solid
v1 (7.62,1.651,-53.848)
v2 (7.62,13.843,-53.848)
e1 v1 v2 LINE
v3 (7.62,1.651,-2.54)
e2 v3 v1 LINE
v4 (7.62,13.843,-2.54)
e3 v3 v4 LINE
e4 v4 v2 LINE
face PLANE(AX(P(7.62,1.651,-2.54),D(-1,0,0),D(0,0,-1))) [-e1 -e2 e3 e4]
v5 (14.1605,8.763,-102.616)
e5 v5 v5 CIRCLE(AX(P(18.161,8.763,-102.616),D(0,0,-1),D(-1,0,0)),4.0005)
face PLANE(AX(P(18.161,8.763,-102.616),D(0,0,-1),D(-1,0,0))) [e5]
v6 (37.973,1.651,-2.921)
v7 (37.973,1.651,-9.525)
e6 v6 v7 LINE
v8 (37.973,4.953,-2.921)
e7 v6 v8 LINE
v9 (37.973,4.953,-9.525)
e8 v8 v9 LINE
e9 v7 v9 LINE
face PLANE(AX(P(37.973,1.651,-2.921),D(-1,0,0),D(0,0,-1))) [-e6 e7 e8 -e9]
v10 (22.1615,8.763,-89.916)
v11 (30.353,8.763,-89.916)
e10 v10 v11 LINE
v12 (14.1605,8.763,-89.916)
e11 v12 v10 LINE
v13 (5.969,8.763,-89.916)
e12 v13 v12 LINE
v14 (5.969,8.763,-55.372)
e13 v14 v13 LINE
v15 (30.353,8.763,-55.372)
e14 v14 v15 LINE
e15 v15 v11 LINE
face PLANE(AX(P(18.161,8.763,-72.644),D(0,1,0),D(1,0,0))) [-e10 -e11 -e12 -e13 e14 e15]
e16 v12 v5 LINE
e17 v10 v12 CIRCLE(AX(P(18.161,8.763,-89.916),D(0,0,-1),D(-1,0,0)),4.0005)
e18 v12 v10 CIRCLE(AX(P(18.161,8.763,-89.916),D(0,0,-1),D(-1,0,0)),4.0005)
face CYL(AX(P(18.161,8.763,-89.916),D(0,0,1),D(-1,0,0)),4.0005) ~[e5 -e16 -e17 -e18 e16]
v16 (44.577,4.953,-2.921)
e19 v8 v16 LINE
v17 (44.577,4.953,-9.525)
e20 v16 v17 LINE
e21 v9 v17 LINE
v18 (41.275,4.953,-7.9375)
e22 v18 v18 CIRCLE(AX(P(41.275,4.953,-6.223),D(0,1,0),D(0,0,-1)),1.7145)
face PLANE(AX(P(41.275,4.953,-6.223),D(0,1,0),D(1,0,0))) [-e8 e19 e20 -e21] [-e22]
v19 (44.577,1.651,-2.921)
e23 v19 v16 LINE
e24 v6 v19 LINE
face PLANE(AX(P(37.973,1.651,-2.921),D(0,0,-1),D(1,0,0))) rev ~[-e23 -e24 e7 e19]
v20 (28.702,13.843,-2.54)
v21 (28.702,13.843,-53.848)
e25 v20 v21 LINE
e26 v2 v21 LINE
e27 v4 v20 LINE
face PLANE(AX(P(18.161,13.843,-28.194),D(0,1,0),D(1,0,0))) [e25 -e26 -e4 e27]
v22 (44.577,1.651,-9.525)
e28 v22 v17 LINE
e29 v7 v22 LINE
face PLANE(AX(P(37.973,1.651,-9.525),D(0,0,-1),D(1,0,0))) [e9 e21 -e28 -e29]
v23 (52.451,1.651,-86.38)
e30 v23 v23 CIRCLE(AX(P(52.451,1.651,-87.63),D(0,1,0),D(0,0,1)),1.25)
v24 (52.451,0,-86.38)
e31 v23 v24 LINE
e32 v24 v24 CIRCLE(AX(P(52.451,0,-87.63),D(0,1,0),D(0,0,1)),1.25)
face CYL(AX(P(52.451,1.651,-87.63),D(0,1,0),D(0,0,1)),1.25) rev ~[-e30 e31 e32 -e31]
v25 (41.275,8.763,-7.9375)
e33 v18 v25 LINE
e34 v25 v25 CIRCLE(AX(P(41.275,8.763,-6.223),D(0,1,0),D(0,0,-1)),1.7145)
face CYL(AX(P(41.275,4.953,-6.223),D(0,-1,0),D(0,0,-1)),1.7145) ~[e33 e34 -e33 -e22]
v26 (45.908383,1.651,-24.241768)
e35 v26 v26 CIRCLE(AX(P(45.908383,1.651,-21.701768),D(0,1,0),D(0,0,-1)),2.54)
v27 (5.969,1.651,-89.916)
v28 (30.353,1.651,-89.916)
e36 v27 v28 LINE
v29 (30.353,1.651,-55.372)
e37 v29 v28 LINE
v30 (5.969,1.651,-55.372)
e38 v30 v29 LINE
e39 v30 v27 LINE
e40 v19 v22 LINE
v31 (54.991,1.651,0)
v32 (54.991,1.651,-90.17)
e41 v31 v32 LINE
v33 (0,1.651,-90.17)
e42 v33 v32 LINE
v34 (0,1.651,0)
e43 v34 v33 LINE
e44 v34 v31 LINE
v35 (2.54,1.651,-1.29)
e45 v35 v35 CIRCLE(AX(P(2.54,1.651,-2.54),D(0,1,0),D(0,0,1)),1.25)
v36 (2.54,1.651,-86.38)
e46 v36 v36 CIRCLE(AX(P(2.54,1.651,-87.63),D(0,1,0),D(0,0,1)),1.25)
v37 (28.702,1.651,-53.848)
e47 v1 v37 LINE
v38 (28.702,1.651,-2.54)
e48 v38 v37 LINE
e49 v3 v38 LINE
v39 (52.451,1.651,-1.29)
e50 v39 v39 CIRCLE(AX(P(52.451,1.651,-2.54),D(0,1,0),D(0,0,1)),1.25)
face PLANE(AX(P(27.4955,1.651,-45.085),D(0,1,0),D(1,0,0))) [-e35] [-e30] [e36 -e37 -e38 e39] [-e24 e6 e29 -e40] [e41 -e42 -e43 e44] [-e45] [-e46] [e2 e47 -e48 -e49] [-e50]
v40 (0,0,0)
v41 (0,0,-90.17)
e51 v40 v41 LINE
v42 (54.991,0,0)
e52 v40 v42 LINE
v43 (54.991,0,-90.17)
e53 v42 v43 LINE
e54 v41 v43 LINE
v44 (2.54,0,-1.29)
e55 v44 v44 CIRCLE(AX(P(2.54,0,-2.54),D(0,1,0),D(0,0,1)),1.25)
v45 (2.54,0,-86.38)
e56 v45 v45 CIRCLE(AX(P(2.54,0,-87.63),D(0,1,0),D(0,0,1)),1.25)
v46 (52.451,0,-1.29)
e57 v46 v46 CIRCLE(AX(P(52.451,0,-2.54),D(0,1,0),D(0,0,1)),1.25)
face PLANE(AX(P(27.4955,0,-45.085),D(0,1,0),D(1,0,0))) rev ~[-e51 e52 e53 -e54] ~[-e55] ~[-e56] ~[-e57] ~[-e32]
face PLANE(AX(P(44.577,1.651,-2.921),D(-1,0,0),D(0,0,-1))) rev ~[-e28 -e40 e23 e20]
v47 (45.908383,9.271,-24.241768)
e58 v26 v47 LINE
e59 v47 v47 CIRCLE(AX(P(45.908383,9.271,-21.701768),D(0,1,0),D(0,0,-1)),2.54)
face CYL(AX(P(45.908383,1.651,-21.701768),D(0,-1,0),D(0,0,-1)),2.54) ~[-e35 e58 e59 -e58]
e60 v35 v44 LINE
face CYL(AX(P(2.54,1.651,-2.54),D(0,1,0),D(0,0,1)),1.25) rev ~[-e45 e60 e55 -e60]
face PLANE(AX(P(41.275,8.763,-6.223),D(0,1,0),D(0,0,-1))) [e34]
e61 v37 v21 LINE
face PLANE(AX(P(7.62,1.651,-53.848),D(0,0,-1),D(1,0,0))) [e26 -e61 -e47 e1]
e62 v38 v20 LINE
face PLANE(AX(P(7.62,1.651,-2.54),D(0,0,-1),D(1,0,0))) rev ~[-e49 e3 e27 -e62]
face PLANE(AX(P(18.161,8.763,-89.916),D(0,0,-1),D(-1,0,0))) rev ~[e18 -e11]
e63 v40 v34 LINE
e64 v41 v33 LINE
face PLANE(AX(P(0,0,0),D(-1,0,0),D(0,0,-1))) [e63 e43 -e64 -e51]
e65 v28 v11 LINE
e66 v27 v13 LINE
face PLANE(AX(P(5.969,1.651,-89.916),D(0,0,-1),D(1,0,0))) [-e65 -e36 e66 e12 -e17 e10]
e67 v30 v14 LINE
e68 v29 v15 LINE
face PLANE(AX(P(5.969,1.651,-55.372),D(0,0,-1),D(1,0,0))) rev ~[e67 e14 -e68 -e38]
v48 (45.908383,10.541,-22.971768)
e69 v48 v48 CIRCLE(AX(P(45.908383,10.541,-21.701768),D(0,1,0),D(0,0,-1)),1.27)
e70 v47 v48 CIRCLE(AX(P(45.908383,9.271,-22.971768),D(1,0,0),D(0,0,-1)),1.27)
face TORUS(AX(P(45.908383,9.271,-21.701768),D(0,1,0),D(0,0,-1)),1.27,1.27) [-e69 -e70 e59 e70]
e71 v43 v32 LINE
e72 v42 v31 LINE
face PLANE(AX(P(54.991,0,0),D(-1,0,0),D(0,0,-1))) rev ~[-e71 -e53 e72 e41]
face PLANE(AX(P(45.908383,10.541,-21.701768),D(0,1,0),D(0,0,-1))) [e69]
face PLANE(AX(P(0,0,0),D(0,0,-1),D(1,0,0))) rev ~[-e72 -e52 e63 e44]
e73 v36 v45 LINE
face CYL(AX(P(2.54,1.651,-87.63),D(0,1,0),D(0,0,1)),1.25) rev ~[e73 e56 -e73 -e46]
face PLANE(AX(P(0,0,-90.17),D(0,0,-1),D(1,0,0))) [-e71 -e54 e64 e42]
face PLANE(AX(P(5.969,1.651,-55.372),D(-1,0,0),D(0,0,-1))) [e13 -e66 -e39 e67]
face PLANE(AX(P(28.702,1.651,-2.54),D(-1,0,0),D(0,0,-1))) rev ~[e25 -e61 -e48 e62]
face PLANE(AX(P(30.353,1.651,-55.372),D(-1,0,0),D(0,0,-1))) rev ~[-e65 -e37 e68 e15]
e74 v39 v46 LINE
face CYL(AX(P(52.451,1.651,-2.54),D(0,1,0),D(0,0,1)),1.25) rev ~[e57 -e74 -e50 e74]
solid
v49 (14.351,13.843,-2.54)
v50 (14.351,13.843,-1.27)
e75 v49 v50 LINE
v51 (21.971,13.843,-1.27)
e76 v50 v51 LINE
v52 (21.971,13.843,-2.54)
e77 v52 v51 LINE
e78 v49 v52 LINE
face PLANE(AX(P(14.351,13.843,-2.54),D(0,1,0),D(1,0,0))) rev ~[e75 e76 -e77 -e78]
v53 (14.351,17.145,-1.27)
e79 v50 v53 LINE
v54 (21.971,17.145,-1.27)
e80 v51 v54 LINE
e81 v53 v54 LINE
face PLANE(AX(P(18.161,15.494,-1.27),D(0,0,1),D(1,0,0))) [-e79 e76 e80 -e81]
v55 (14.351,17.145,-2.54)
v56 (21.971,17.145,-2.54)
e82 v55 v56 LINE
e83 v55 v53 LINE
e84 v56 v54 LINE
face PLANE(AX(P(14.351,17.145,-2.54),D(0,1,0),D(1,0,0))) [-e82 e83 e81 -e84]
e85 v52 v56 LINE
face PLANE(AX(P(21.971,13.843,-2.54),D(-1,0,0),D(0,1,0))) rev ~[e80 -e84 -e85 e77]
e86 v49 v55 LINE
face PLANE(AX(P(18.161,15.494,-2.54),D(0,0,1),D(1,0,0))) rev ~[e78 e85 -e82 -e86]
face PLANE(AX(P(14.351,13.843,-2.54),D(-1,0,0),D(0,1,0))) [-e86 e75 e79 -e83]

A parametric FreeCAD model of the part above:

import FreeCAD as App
import Part
import Sketcher
Q = App.Units.Quantity


def edges_at(feature, points):
    """Names of the edges that pass closest to the given points."""
    edges = feature.Shape.Edges
    near = lambda p: min(range(len(edges)), key=lambda i: edges[i].distToShape(Part.Vertex(*p))[0])
    return sorted({f"Edge{near(p) + 1}" for p in points})


def add_polygon(sketch, points):
    """Adds a closed chain of lines whose ends are joined by coincident constraints."""
    first, n = sketch.GeometryCount, len(points)
    for a, b in zip(points, points[1:] + points[:1]):
        sketch.addGeometry(Part.LineSegment(App.Vector(*a, 0), App.Vector(*b, 0)), False)
    for i in range(n):
        sketch.addConstraint(Sketcher.Constraint("Coincident", first + i, 2, first + (i + 1) % n, 1))

doc = App.newDocument("Part")
body = doc.addObject("PartDesign::Body", "Body")

# Sketch on XZ plane
sketch1 = doc.addObject("Sketcher::SketchObject", "Sketch")
body.addObject(sketch1)
sketch1.AttachmentSupport = (doc.XZ_Plane, [""])
sketch1.MapMode = "FlatFace"
add_polygon(sketch1, [(0, -90), (0, 0), (55, 0), (55, -90)])  # lines 0-3
sketch1.addConstraint(Sketcher.Constraint("Vertical", 0))
sketch1.addConstraint(Sketcher.Constraint("Horizontal", 1))
sketch1.addConstraint(Sketcher.Constraint("Vertical", 2))
sketch1.addConstraint(Sketcher.Constraint("Horizontal", 3))
sketch1.addConstraint(Sketcher.Constraint("Coincident", 0, 2, -1, 1))
sketch1.addConstraint(Sketcher.Constraint("DistanceY", 0, 1, 0, 2, Q("3.55 in")))
sketch1.addConstraint(Sketcher.Constraint("DistanceX", 1, 1, 1, 2, Q("2.165 in")))
pad1 = doc.addObject("PartDesign::Pad", "Pad")
body.addObject(pad1)
pad1.Profile = sketch1
pad1.Length = Q("0.065 in")
pad1.Reversed = True

# Sketch on XZ plane
sketch2 = doc.addObject("Sketcher::SketchObject", "Sketch001")
body.addObject(sketch2)
sketch2.AttachmentSupport = (doc.XZ_Plane, [""])
sketch2.MapMode = "FlatFace"
sketch2.AttachmentOffset = App.Placement(App.Vector(0, 0, -0.065 * 25.4), App.Rotation())
add_polygon(sketch2, [(8, -54), (8, -3), (29, -3), (29, -54)])  # lines 0-3
sketch2.addConstraint(Sketcher.Constraint("Vertical", 0))
sketch2.addConstraint(Sketcher.Constraint("Horizontal", 1))
sketch2.addConstraint(Sketcher.Constraint("Vertical", 2))
sketch2.addConstraint(Sketcher.Constraint("Horizontal", 3))
sketch2.addConstraint(Sketcher.Constraint("DistanceX", 1, 1, 1, 2, Q("0.83 in")))
sketch2.addConstraint(Sketcher.Constraint("DistanceY", 0, 1, 0, 2, Q("2.02 in")))
sketch2.addConstraint(Sketcher.Constraint("DistanceX", -1, 1, 0, 2, Q("0.3 in")))
sketch2.addConstraint(Sketcher.Constraint("DistanceY", 0, 2, -1, 1, Q("0.1 in")))
pad2 = doc.addObject("PartDesign::Pad", "Pad001")
body.addObject(pad2)
pad2.Profile = sketch2
pad2.Length = Q("0.48 in")
pad2.Reversed = True

# Sketch on XZ plane
sketch3 = doc.addObject("Sketcher::SketchObject", "Sketch002")
body.addObject(sketch3)
sketch3.AttachmentSupport = (doc.XZ_Plane, [""])
sketch3.MapMode = "FlatFace"
sketch3.AttachmentOffset = App.Placement(App.Vector(0, 0, -0.065 * 25.4), App.Rotation())
add_polygon(sketch3, [(38, -10), (38, -3), (45, -3), (45, -10)])  # lines 0-3
sketch3.addConstraint(Sketcher.Constraint("Vertical", 0))
sketch3.addConstraint(Sketcher.Constraint("Horizontal", 1))
sketch3.addConstraint(Sketcher.Constraint("Vertical", 2))
sketch3.addConstraint(Sketcher.Constraint("Horizontal", 3))
sketch3.addConstraint(Sketcher.Constraint("Equal", 3, 0))
sketch3.addConstraint(Sketcher.Constraint("DistanceX", 1, 1, 1, 2, Q("0.26 in")))
sketch3.addConstraint(Sketcher.Constraint("DistanceX", -1, 1, 0, 2, Q("1.495 in")))
sketch3.addConstraint(Sketcher.Constraint("DistanceY", 0, 2, -1, 1, Q("0.115 in")))
pad3 = doc.addObject("PartDesign::Pad", "Pad002")
body.addObject(pad3)
pad3.Profile = sketch3
pad3.Length = Q("0.13 in")
pad3.Reversed = True

# Sketch on XZ plane
sketch4 = doc.addObject("Sketcher::SketchObject", "Sketch003")
body.addObject(sketch4)
sketch4.AttachmentSupport = (doc.XZ_Plane, [""])
sketch4.MapMode = "FlatFace"
sketch4.AttachmentOffset = App.Placement(App.Vector(0, 0, -0.065 * 25.4), App.Rotation())
add_polygon(sketch4, [(6, -90), (6, -55), (30, -55), (30, -90)])  # lines 0-3
sketch4.addConstraint(Sketcher.Constraint("Vertical", 0))
sketch4.addConstraint(Sketcher.Constraint("Horizontal", 1))
sketch4.addConstraint(Sketcher.Constraint("Vertical", 2))
sketch4.addConstraint(Sketcher.Constraint("Horizontal", 3))
sketch4.addConstraint(Sketcher.Constraint("DistanceX", 1, 1, 1, 2, Q("0.96 in")))
sketch4.addConstraint(Sketcher.Constraint("DistanceY", 0, 1, 0, 2, Q("1.36 in")))
sketch4.addConstraint(Sketcher.Constraint("DistanceY", 0, 2, -1, 1, Q("2.18 in")))
sketch4.addConstraint(Sketcher.Constraint("DistanceX", -1, 1, 0, 2, Q("0.235 in")))
pad4 = doc.addObject("PartDesign::Pad", "Pad003")
body.addObject(pad4)
pad4.Profile = sketch4
pad4.Length = Q("0.28 in")
pad4.Reversed = True

# Sketch on XZ plane
sketch5 = doc.addObject("Sketcher::SketchObject", "Sketch004")
body.addObject(sketch5)
sketch5.AttachmentSupport = (doc.XZ_Plane, [""])
sketch5.MapMode = "FlatFace"
sketch5.AttachmentOffset = App.Placement(App.Vector(0, 0, -0.195 * 25.4), App.Rotation())
sketch5.addGeometry(Part.Circle(App.Vector(41.3, -6.2, 0), App.Vector(0, 0, 1), 1.7), False)
sketch5.addConstraint(Sketcher.Constraint("Diameter", 0, Q("0.135 in")))
sketch5.addConstraint(Sketcher.Constraint("DistanceX", -1, 1, 0, 3, Q("1.625 in")))
sketch5.addConstraint(Sketcher.Constraint("DistanceY", 0, 3, -1, 1, Q("0.245 in")))
pad5 = doc.addObject("PartDesign::Pad", "Pad004")
body.addObject(pad5)
pad5.Profile = sketch5
pad5.Length = Q("0.15 in")
pad5.Reversed = True

# Sketch on XZ plane
sketch6 = doc.addObject("Sketcher::SketchObject", "Sketch005")
body.addObject(sketch6)
sketch6.AttachmentSupport = (doc.XZ_Plane, [""])
sketch6.MapMode = "FlatFace"
sketch6.AttachmentOffset = App.Placement(App.Vector(0, 0, -0.065 * 25.4), App.Rotation())
sketch6.addGeometry(Part.Circle(App.Vector(45.9, -21.7, 0), App.Vector(0, 0, 1), 2.5), False)
sketch6.addConstraint(Sketcher.Constraint("Diameter", 0, Q("0.2 in")))
sketch6.addConstraint(Sketcher.Constraint("DistanceX", -1, 1, 0, 3, Q("45.908383 mm")))
sketch6.addConstraint(Sketcher.Constraint("DistanceY", 0, 3, -1, 1, Q("21.701768 mm")))
pad6 = doc.addObject("PartDesign::Pad", "Pad005")
body.addObject(pad6)
pad6.Profile = sketch6
pad6.Length = Q("0.35 in")
pad6.Reversed = True
doc.recompute()

fillet = doc.addObject("PartDesign::Fillet", "Fillet")
body.addObject(fillet)
fillet.Base = (pad6, edges_at(pad6, [(45.908, 10.541, -19.162)]))
fillet.Radius = Q("0.05 in")

# Sketch on XY plane
sketch7 = doc.addObject("Sketcher::SketchObject", "Sketch006")
body.addObject(sketch7)
sketch7.AttachmentSupport = (doc.XY_Plane, [""])
sketch7.MapMode = "FlatFace"
sketch7.AttachmentOffset = App.Placement(App.Vector(0, 0, -3.54 * 25.4), App.Rotation())
sketch7.addGeometry(Part.Circle(App.Vector(18.2, 8.8, 0), App.Vector(0, 0, 1), 4), False)
sketch7.addConstraint(Sketcher.Constraint("Diameter", 0, Q("0.315 in")))
sketch7.addConstraint(Sketcher.Constraint("DistanceX", -1, 1, 0, 3, Q("0.715 in")))
sketch7.addConstraint(Sketcher.Constraint("DistanceY", -1, 1, 0, 3, Q("0.345 in")))
pad7 = doc.addObject("PartDesign::Pad", "Pad006")
body.addObject(pad7)
pad7.Profile = sketch7
pad7.Length = Q("0.5 in")
pad7.Reversed = True

# Sketch on XZ plane
sketch8 = doc.addObject("Sketcher::SketchObject", "Sketch007")
body.addObject(sketch8)
sketch8.AttachmentSupport = (doc.XZ_Plane, [""])
sketch8.MapMode = "FlatFace"
sketch8.AttachmentOffset = App.Placement(App.Vector(0, 0, -0.065 * 25.4), App.Rotation())
sketch8.addGeometry(Part.Circle(App.Vector(2.5, -87.6, 0), App.Vector(0, 0, 1), 1.2), False)
sketch8.addGeometry(Part.Circle(App.Vector(2.5, -2.5, 0), App.Vector(0, 0, 1), 1.2), False)
sketch8.addGeometry(Part.Circle(App.Vector(52.5, -2.5, 0), App.Vector(0, 0, 1), 1.2), False)
sketch8.addGeometry(Part.Circle(App.Vector(52.5, -87.6, 0), App.Vector(0, 0, 1), 1.2), False)
sketch8.addConstraint(Sketcher.Constraint("Equal", 0, 1))
sketch8.addConstraint(Sketcher.Constraint("Equal", 1, 2))
sketch8.addConstraint(Sketcher.Constraint("Equal", 2, 3))
sketch8.addConstraint(Sketcher.Constraint("Horizontal", 1, 3, 2, 3))
sketch8.addConstraint(Sketcher.Constraint("Horizontal", 0, 3, 3, 3))
sketch8.addConstraint(Sketcher.Constraint("Vertical", 0, 3, 1, 3))
sketch8.addConstraint(Sketcher.Constraint("Vertical", 2, 3, 3, 3))
sketch8.addConstraint(Sketcher.Constraint("DistanceX", -1, 1, 0, 3, Q("0.1 in")))
sketch8.addConstraint(Sketcher.Constraint("DistanceY", 1, 3, -1, 1, Q("0.1 in")))
sketch8.addConstraint(Sketcher.Constraint("Diameter", 0, Q("2.5 mm")))
sketch8.addConstraint(Sketcher.Constraint("DistanceY", 0, 3, -1, 1, Q("3.45 in")))
sketch8.addConstraint(Sketcher.Constraint("DistanceX", -1, 1, 2, 3, Q("2.065 in")))
pocket1 = doc.addObject("PartDesign::Pocket", "Pocket")
body.addObject(pocket1)
pocket1.Profile = sketch8
pocket1.Type = "ThroughAll"
pocket1.Reversed = True
body2 = doc.addObject("PartDesign::Body", "Body001")

# Sketch on XY plane
sketch9 = doc.addObject("Sketcher::SketchObject", "Sketch008")
body2.addObject(sketch9)
sketch9.AttachmentSupport = (doc.getObject("XY_Plane001"), [""])
sketch9.MapMode = "FlatFace"
sketch9.AttachmentOffset = App.Placement(App.Vector(0, 0, -0.1 * 25.4), App.Rotation())
add_polygon(sketch9, [(14.4, 17.1), (14.4, 13.8), (22, 13.8), (22, 17.1)])  # lines 0-3
sketch9.addConstraint(Sketcher.Constraint("Vertical", 0))
sketch9.addConstraint(Sketcher.Constraint("Horizontal", 1))
sketch9.addConstraint(Sketcher.Constraint("Vertical", 2))
sketch9.addConstraint(Sketcher.Constraint("Horizontal", 3))
sketch9.addConstraint(Sketcher.Constraint("DistanceX", 1, 1, 1, 2, Q("0.3 in")))
sketch9.addConstraint(Sketcher.Constraint("DistanceY", 0, 2, 0, 1, Q("0.13 in")))
sketch9.addConstraint(Sketcher.Constraint("DistanceX", -1, 1, 0, 2, Q("0.565 in")))
sketch9.addConstraint(Sketcher.Constraint("DistanceY", -1, 1, 0, 2, Q("0.545 in")))
pad8 = doc.addObject("PartDesign::Pad", "Pad007")
body2.addObject(pad8)
pad8.Profile = sketch9
pad8.Length = Q("0.05 in")

doc.recompute()
